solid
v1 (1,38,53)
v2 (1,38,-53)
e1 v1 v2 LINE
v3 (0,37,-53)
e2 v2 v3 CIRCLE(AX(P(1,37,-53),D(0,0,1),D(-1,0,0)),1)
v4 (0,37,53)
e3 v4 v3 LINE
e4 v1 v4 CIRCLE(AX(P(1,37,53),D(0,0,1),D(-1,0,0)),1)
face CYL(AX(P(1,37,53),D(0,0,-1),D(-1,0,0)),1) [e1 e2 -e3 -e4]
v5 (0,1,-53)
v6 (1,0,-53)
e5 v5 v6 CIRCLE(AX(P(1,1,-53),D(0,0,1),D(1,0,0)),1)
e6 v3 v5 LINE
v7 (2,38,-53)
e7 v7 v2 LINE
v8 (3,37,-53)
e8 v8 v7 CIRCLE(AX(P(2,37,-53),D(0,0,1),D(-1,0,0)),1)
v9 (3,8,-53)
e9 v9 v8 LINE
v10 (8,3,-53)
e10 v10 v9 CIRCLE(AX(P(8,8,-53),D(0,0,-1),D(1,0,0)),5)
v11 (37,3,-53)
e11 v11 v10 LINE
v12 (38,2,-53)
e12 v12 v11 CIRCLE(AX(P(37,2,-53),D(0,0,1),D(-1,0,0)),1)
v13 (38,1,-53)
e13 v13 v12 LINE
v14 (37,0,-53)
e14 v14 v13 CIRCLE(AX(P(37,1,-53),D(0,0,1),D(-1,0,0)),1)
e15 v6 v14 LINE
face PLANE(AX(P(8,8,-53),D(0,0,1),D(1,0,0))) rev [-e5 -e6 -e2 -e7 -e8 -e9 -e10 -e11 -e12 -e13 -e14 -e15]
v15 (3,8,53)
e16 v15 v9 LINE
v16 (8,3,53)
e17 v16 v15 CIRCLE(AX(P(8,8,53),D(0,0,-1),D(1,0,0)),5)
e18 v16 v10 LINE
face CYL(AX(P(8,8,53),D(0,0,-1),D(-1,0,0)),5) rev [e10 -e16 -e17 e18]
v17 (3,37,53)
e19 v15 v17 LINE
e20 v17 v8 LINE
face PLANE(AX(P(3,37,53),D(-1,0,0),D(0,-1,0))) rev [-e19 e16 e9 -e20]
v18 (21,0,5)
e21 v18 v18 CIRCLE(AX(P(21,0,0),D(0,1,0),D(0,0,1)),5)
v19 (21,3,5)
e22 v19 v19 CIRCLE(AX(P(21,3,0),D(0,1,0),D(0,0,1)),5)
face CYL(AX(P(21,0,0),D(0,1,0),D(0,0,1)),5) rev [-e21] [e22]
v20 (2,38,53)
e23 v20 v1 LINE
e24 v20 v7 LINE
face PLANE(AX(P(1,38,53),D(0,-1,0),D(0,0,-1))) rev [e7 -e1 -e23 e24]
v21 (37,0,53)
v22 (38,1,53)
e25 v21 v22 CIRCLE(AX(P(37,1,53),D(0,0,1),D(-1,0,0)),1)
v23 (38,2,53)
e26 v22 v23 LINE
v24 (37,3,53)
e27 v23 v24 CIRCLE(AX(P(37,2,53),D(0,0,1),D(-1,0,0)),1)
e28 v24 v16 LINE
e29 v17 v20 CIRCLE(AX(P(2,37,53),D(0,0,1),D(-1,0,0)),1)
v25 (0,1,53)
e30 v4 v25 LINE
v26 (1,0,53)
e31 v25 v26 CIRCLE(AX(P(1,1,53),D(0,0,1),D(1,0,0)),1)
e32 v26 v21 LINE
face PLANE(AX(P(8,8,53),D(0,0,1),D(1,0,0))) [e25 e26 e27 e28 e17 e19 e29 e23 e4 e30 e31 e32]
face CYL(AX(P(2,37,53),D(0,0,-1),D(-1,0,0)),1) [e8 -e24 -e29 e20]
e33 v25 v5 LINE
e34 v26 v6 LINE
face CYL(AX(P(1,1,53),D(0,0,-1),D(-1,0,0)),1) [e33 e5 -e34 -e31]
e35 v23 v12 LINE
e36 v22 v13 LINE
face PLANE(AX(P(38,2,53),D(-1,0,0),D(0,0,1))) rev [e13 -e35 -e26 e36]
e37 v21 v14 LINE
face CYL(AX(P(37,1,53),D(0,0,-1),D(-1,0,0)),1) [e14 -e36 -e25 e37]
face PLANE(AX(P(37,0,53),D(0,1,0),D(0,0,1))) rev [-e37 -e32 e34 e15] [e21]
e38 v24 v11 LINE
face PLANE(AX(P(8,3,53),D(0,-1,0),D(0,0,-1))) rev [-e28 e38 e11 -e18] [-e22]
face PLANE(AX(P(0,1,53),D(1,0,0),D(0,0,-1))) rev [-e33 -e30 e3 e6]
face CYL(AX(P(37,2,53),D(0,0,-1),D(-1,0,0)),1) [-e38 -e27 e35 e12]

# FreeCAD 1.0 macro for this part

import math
import FreeCAD as App
import Part
import Sketcher
from FreeCAD import Vector
Q = App.Units.Quantity

doc = App.newDocument("Part")
body = doc.addObject("PartDesign::Body", "Body")

# Sketch on XY plane
sketch1 = body.newObject("Sketcher::SketchObject", "Sketch")
sketch1.AttachmentSupport = (doc.getObject("XY_Plane"), [""])
sketch1.MapMode = "FlatFace"
sketch1.addGeometry([
    Part.LineSegment(Vector(0, 37, 0), Vector(0, 1, 0)),  # 0
    Part.ArcOfCircle(Part.Circle(Vector(1, 1, 0), Vector(0, 0, 1), 1), math.radians(-180), math.radians(-90)),  # 1
    Part.LineSegment(Vector(1, 0, 0), Vector(37, 0, 0)),  # 2
    Part.ArcOfCircle(Part.Circle(Vector(37, 1, 0), Vector(0, 0, 1), 1), math.radians(-90), math.radians(0)),  # 3
    Part.LineSegment(Vector(38, 1, 0), Vector(38, 2, 0)),  # 4
    Part.ArcOfCircle(Part.Circle(Vector(37, 2, 0), Vector(0, 0, 1), 1), math.radians(0), math.radians(90)),  # 5
    Part.LineSegment(Vector(37, 3, 0), Vector(8, 3, 0)),  # 6
    Part.ArcOfCircle(Part.Circle(Vector(8, 8, 0), Vector(0, 0, 1), 5), math.radians(180), math.radians(270)),  # 7
    Part.LineSegment(Vector(3, 8, 0), Vector(3, 37, 0)),  # 8
    Part.ArcOfCircle(Part.Circle(Vector(2, 37, 0), Vector(0, 0, 1), 1), math.radians(0), math.radians(90)),  # 9
    Part.LineSegment(Vector(2, 38, 0), Vector(1, 38, 0)),  # 10
    Part.ArcOfCircle(Part.Circle(Vector(1, 37, 0), Vector(0, 0, 1), 1), math.radians(90), math.radians(180)),  # 11
], False)
sketch1.addConstraint([
    Sketcher.Constraint("Tangent", 0, 2, 1, 1),
    Sketcher.Constraint("Tangent", 1, 2, 2, 1),
    Sketcher.Constraint("Tangent", 2, 2, 3, 1),
    Sketcher.Constraint("Tangent", 3, 2, 4, 1),
    Sketcher.Constraint("Tangent", 4, 2, 5, 1),
    Sketcher.Constraint("Tangent", 5, 2, 6, 1),
    Sketcher.Constraint("Tangent", 6, 2, 7, 2),
    Sketcher.Constraint("Tangent", 7, 1, 8, 1),
    Sketcher.Constraint("Tangent", 8, 2, 9, 1),
    Sketcher.Constraint("Tangent", 9, 2, 10, 1),
    Sketcher.Constraint("Tangent", 10, 2, 11, 1),
    Sketcher.Constraint("Tangent", 11, 2, 0, 1),
    Sketcher.Constraint("Vertical", 0),
    Sketcher.Constraint("Horizontal", 2),
    Sketcher.Constraint("Vertical", 4),
    Sketcher.Constraint("Horizontal", 6),
    Sketcher.Constraint("Vertical", 8),
    Sketcher.Constraint("Horizontal", 10),
    Sketcher.Constraint("Equal", 1, 3),
    Sketcher.Constraint("Equal", 3, 5),
    Sketcher.Constraint("Equal", 5, 9),
    Sketcher.Constraint("Equal", 9, 11),
    Sketcher.Constraint("PointOnObject", 0, 2, -2),
    Sketcher.Constraint("PointOnObject", 1, 2, -1),
    Sketcher.Constraint("Equal", 2, 0),
    Sketcher.Constraint("Equal", 10, 4),
    Sketcher.Constraint("Radius", 1, Q("1 mm")),
    Sketcher.Constraint("Radius", 7, Q("5 mm")),
    Sketcher.Constraint("DistanceX", 2, 1, 2, 2, Q("36 mm")),
    Sketcher.Constraint("DistanceX", 6, 2, 6, 1, Q("29 mm")),
])
pad1 = body.newObject("PartDesign::Pad", "Pad")
pad1.Profile = sketch1
pad1.Length = 106
pad1.Midplane = True

# Sketch on XZ plane
sketch2 = body.newObject("Sketcher::SketchObject", "Sketch001")
sketch2.AttachmentSupport = (doc.getObject("XZ_Plane"), [""])
sketch2.MapMode = "FlatFace"
sketch2.AttachmentOffset = App.Placement(Vector(0, 0, -3), App.Rotation())
sketch2.addGeometry(Part.Circle(Vector(21, 0, 0), Vector(0, 0, 1), 5), False)
sketch2.addConstraint([
    Sketcher.Constraint("PointOnObject", 0, 3, -1),
    Sketcher.Constraint("Diameter", 0, Q("10 mm")),
    Sketcher.Constraint("DistanceX", -1, 1, 0, 3, Q("21 mm")),
])
pocket1 = body.newObject("PartDesign::Pocket", "Pocket")
pocket1.Profile = sketch2
pocket1.Type = "ThroughAll"
pocket1.Reversed = True

doc.recompute()
